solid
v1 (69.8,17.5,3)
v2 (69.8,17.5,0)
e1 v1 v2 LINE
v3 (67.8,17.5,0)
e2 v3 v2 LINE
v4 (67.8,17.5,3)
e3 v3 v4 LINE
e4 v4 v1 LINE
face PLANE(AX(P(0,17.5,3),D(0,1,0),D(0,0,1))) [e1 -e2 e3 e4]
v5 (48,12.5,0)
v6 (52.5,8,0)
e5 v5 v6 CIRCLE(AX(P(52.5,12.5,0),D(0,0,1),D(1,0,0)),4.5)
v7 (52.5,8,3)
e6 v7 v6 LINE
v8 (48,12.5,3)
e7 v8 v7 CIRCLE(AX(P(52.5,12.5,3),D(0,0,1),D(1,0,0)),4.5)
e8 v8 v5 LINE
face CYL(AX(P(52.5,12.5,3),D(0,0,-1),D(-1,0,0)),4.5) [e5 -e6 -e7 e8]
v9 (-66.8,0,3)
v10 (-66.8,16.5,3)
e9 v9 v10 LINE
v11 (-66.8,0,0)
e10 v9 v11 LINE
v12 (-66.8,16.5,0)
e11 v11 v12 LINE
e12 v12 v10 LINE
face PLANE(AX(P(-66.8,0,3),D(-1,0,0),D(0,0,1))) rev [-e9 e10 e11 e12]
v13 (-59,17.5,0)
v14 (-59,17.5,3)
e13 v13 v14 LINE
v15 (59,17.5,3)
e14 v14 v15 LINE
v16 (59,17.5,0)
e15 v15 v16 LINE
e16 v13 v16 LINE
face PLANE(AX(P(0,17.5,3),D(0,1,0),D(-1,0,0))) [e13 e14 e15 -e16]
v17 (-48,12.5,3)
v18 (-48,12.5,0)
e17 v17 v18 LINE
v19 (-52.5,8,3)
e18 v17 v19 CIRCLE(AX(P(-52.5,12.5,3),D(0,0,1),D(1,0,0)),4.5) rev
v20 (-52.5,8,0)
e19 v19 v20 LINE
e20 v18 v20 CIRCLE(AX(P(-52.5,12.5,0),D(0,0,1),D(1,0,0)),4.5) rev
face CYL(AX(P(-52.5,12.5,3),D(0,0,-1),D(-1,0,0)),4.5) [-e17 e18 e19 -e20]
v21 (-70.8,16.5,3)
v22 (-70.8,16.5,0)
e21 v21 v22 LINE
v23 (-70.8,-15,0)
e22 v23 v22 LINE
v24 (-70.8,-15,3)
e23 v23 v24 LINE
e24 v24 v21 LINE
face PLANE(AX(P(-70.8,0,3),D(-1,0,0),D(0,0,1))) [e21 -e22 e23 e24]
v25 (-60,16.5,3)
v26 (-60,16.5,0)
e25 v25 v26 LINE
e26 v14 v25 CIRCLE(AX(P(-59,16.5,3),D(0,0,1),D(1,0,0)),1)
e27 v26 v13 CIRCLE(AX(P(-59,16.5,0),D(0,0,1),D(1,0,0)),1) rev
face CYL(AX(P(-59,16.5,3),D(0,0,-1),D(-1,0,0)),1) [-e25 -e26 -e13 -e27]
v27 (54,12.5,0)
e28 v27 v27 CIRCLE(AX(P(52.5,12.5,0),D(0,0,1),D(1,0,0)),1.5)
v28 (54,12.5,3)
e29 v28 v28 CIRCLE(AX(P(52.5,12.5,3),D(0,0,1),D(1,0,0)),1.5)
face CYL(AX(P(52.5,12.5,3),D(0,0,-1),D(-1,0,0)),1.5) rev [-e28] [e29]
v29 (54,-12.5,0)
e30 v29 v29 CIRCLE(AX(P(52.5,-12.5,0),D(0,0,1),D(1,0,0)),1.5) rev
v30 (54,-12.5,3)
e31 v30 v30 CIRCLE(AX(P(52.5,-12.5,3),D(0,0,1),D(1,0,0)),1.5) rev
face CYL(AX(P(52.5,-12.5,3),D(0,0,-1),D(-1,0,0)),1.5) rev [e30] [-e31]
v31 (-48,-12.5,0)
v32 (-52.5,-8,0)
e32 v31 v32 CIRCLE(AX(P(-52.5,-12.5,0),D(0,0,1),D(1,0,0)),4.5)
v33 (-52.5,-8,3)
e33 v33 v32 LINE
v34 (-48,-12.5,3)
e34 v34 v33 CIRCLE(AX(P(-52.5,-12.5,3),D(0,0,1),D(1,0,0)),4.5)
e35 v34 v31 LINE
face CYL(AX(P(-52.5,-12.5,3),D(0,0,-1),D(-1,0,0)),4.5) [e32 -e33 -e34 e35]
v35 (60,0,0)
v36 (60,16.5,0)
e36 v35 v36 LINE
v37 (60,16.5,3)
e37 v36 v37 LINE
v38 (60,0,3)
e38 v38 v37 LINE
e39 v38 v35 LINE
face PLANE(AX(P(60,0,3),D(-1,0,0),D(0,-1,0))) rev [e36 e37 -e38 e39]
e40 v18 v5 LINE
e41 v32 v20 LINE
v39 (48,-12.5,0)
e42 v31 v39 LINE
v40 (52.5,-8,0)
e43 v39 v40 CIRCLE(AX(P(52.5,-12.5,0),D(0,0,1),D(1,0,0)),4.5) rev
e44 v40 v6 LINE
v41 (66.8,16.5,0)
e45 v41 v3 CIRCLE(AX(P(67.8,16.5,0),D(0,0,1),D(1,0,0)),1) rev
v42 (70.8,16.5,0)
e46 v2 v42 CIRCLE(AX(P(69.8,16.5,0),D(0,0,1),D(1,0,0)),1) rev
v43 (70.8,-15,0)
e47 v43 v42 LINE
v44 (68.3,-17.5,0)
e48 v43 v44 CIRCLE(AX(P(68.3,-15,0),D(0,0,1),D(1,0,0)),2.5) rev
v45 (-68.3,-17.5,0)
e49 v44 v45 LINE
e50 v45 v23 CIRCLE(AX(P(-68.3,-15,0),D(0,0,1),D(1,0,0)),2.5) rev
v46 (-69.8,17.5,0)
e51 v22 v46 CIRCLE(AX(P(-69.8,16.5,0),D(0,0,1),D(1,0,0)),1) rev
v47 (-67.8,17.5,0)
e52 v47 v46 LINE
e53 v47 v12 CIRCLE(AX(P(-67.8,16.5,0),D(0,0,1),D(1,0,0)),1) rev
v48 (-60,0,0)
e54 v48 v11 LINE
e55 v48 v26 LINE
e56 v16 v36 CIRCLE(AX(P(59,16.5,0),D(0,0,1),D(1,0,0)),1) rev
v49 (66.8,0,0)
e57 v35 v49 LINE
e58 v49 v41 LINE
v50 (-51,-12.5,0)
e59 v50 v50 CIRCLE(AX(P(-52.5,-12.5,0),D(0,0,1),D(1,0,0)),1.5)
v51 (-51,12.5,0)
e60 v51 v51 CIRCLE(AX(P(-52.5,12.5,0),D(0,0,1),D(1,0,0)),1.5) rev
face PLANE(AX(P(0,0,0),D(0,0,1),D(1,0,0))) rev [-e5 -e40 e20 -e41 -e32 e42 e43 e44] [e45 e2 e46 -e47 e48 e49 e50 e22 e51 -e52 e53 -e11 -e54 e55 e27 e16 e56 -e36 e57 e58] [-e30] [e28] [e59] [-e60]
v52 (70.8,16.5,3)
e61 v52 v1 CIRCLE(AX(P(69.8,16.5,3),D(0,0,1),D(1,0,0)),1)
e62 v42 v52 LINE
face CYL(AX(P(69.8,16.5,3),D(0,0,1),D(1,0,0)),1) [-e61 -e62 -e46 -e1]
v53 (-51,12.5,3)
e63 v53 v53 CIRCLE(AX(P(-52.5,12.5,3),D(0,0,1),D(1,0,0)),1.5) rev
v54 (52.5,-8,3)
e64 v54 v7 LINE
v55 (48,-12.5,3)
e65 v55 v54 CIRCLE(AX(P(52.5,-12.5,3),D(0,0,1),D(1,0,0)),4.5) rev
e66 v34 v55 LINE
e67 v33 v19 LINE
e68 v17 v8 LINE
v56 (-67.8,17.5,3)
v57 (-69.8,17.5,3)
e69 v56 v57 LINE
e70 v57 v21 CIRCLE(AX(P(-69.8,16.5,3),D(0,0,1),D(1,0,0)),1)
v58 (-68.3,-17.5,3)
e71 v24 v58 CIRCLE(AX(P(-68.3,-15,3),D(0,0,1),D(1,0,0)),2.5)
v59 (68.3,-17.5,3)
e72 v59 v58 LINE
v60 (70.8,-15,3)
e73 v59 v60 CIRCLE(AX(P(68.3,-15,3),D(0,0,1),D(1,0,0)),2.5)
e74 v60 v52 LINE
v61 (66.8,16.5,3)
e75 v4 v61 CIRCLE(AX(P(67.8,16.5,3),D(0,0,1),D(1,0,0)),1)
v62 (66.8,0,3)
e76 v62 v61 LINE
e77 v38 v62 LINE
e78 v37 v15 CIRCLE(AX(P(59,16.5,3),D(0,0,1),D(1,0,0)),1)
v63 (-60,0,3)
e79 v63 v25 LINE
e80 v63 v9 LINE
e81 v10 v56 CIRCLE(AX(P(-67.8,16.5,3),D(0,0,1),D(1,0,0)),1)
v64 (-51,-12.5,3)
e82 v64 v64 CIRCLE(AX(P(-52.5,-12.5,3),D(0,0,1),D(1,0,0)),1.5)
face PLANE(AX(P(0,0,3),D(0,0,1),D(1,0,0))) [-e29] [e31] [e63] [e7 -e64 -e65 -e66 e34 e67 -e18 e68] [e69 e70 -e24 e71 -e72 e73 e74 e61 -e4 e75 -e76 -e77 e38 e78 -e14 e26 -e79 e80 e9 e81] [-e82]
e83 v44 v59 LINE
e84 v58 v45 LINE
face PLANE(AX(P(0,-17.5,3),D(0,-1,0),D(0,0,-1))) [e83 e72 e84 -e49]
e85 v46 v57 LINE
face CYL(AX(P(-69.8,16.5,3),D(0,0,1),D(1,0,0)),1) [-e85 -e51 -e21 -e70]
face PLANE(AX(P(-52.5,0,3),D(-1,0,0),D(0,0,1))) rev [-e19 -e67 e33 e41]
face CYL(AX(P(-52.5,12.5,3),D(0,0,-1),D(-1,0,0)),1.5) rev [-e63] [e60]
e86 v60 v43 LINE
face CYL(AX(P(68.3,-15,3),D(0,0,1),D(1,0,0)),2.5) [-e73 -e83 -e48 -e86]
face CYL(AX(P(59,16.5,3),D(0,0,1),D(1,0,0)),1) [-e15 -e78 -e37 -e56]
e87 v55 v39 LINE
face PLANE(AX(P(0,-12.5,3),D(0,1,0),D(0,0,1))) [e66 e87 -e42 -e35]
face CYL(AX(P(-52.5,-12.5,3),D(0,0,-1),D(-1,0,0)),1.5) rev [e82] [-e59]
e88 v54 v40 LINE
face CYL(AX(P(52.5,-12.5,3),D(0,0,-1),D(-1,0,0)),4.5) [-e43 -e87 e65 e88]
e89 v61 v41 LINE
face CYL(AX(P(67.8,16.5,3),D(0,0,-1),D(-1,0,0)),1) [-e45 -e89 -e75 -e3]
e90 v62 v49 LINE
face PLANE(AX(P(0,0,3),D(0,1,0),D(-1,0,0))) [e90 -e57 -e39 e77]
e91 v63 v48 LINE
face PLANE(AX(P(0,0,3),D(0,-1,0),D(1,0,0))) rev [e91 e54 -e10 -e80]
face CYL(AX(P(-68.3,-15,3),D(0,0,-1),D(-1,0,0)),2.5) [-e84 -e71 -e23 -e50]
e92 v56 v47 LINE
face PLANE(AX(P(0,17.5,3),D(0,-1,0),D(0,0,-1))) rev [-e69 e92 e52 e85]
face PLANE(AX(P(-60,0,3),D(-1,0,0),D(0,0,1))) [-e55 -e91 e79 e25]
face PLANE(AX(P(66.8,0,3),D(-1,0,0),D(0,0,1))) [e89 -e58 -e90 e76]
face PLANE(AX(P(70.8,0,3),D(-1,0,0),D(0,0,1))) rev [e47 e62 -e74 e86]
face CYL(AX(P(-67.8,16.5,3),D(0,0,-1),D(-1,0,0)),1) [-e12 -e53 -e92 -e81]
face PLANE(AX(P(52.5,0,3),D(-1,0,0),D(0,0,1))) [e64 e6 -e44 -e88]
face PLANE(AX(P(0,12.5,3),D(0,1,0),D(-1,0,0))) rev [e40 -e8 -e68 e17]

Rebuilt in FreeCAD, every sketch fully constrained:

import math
import FreeCAD as App
import Part
import Sketcher

V = App.Vector


def edges_at(feature, points):
    """Names of the edges that pass closest to the given points."""
    edges = feature.Shape.Edges
    near = lambda p: min(range(len(edges)), key=lambda i: edges[i].distToShape(Part.Vertex(*p))[0])
    return sorted({f"Edge{near(p) + 1}" for p in points})


def add_polygon(sketch, points):
    """Adds a closed chain of lines whose ends are joined by coincident constraints."""
    first, n = sketch.GeometryCount, len(points)
    for a, b in zip(points, points[1:] + points[:1]):
        sketch.addGeometry(Part.LineSegment(App.Vector(*a, 0), App.Vector(*b, 0)), False)
    for i in range(n):
        sketch.addConstraint(Sketcher.Constraint("Coincident", first + i, 2, first + (i + 1) % n, 1))

doc = App.newDocument("Part")
body = doc.addObject("PartDesign::Body", "Body")

sketch1 = body.newObject("Sketcher::SketchObject", "Sketch")
sketch1.AttachmentSupport = (doc.getObject("XY_Plane"), [""])
sketch1.MapMode = "FlatFace"
add_polygon(sketch1, [(-60, 17.5), (-60, 0), (-66.8, 0), (-66.8, 17.5), (-70.8, 17.5), (-70.8, -17.5), (70.8, -17.5), (70.8, 17.5), (66.8, 17.5), (66.8, 0), (60, 0), (60, 17.5)])
sketch1.addGeometry(Part.Circle(V(-52.5, -12.5, 0), V(0, 0, 1), 1.5), False)
sketch1.addGeometry(Part.Circle(V(52.5, -12.5, 0), V(0, 0, 1), 1.5), False)
sketch1.addGeometry(Part.Circle(V(-52.5, 12.5, 0), V(0, 0, 1), 1.5), False)
sketch1.addGeometry(Part.ArcOfCircle(Part.Circle(V(52.5, -12.5, 0), V(0, 0, 1), 4.5), math.radians(90), math.radians(180)), False)
sketch1.addGeometry(Part.LineSegment(V(48, -12.5, 0), V(-48, -12.5, 0)), False)
sketch1.addGeometry(Part.ArcOfCircle(Part.Circle(V(-52.5, -12.5, 0), V(0, 0, 1), 4.5), math.radians(0), math.radians(90)), False)
sketch1.addGeometry(Part.LineSegment(V(-52.5, -8, 0), V(-52.5, 8, 0)), False)
sketch1.addGeometry(Part.ArcOfCircle(Part.Circle(V(-52.5, 12.5, 0), V(0, 0, 1), 4.5), math.radians(-90), math.radians(0)), False)
sketch1.addGeometry(Part.LineSegment(V(-48, 12.5, 0), V(48, 12.5, 0)), False)
sketch1.addGeometry(Part.ArcOfCircle(Part.Circle(V(52.5, 12.5, 0), V(0, 0, 1), 4.5), math.radians(-180), math.radians(-90)), False)
sketch1.addGeometry(Part.LineSegment(V(52.5, 8, 0), V(52.5, -8, 0)), False)
sketch1.addGeometry(Part.Circle(V(52.5, 12.5, 0), V(0, 0, 1), 1.5), False)
sketch1.addConstraint(Sketcher.Constraint("Coincident", 15, 2, 16, 1))
sketch1.addConstraint(Sketcher.Constraint("Coincident", 16, 2, 17, 1))
sketch1.addConstraint(Sketcher.Constraint("Coincident", 17, 2, 18, 1))
sketch1.addConstraint(Sketcher.Constraint("Coincident", 18, 2, 19, 1))
sketch1.addConstraint(Sketcher.Constraint("Coincident", 19, 2, 20, 1))
sketch1.addConstraint(Sketcher.Constraint("Coincident", 20, 2, 21, 1))
sketch1.addConstraint(Sketcher.Constraint("Coincident", 21, 2, 22, 1))
sketch1.addConstraint(Sketcher.Constraint("Coincident", 22, 2, 15, 1))
sketch1.addConstraint(Sketcher.Constraint("Vertical", 0))
sketch1.addConstraint(Sketcher.Constraint("Horizontal", 1))
sketch1.addConstraint(Sketcher.Constraint("Vertical", 2))
sketch1.addConstraint(Sketcher.Constraint("Horizontal", 3))
sketch1.addConstraint(Sketcher.Constraint("Vertical", 4))
sketch1.addConstraint(Sketcher.Constraint("Horizontal", 5))
sketch1.addConstraint(Sketcher.Constraint("Vertical", 6))
sketch1.addConstraint(Sketcher.Constraint("Horizontal", 7))
sketch1.addConstraint(Sketcher.Constraint("Vertical", 8))
sketch1.addConstraint(Sketcher.Constraint("Horizontal", 9))
sketch1.addConstraint(Sketcher.Constraint("Vertical", 10))
sketch1.addConstraint(Sketcher.Constraint("Horizontal", 11))
sketch1.addConstraint(Sketcher.Constraint("Horizontal", 16))
sketch1.addConstraint(Sketcher.Constraint("Vertical", 18))
sketch1.addConstraint(Sketcher.Constraint("Horizontal", 20))
sketch1.addConstraint(Sketcher.Constraint("Vertical", 22))
sketch1.addConstraint(Sketcher.Constraint("Coincident", 15, 3, 13, 3))
sketch1.addConstraint(Sketcher.Constraint("Coincident", 17, 3, 12, 3))
sketch1.addConstraint(Sketcher.Constraint("Coincident", 19, 3, 14, 3))
sketch1.addConstraint(Sketcher.Constraint("Coincident", 23, 3, 21, 3))
sketch1.addConstraint(Sketcher.Constraint("Equal", 12, 13))
sketch1.addConstraint(Sketcher.Constraint("Equal", 13, 14))
sketch1.addConstraint(Sketcher.Constraint("Equal", 15, 17))
sketch1.addConstraint(Sketcher.Constraint("Equal", 17, 19))
sketch1.addConstraint(Sketcher.Constraint("Equal", 19, 21))
sketch1.addConstraint(Sketcher.Constraint("Equal", 14, 23))
sketch1.addConstraint(Sketcher.Constraint("Symmetric", 13, 3, 14, 3, -1, 1))
sketch1.addConstraint(Sketcher.Constraint("Symmetric", 12, 3, 21, 3, -1, 1))
sketch1.addConstraint(Sketcher.Constraint("Symmetric", 3, 2, 5, 2, -1, 1))
sketch1.addConstraint(Sketcher.Constraint("Symmetric", 1, 2, 8, 2, -1, 1))
sketch1.addConstraint(Sketcher.Constraint("Symmetric", 12, 3, 13, 3, -2))
sketch1.addConstraint(Sketcher.Constraint("Symmetric", 0, 2, 9, 2, -2))
sketch1.addConstraint(Sketcher.Constraint("Horizontal", 3, 2, 6, 2))
sketch1.addConstraint(Sketcher.Constraint("Horizontal", 7, 2, 10, 2))
sketch1.addConstraint(Sketcher.Constraint("Horizontal", 17, 3, 15, 2))
sketch1.addConstraint(Sketcher.Constraint("Horizontal", 23, 3, 19, 2))
sketch1.addConstraint(Sketcher.Constraint("Vertical", 19, 3, 17, 2))
sketch1.addConstraint(Sketcher.Constraint("Vertical", 23, 3, 21, 2))
sketch1.addConstraint(Sketcher.Constraint("Diameter", 12, 3.0))
sketch1.addConstraint(Sketcher.Constraint("Radius", 15, 4.5))
sketch1.addConstraint(Sketcher.Constraint("DistanceX", 3, 2, 3, 1, 4.0))
sketch1.addConstraint(Sketcher.Constraint("DistanceX", 11, 2, 11, 1, 120.0))
sketch1.addConstraint(Sketcher.Constraint("DistanceX", 16, 2, 16, 1, 96.0))
sketch1.addConstraint(Sketcher.Constraint("DistanceY", 4, 2, 4, 1, 35.0))
sketch1.addConstraint(Sketcher.Constraint("DistanceY", 18, 1, 18, 2, 16.0))
sketch1.addConstraint(Sketcher.Constraint("DistanceX", 1, 2, 1, 1, 6.8))
pad1 = body.newObject("PartDesign::Pad", "Pad")
pad1.Profile = sketch1
pad1.Length = 3
doc.recompute()

fillet = body.newObject("PartDesign::Fillet", "Fillet")
fillet.Base = (pad1, edges_at(pad1, [(-70.8, -17.5, 1.5), (70.8, -17.5, 1.5)]))
fillet.Radius = 2.5
doc.recompute()

fillet2 = body.newObject("PartDesign::Fillet", "Fillet001")
fillet2.Base = (fillet, edges_at(fillet, [
    (-70.8, 17.5, 1.5),
    (-66.8, 17.5, 1.5),
    (-60, 17.5, 1.5),
    (60, 17.5, 1.5),
    (66.8, 17.5, 1.5),
    (70.8, 17.5, 1.5),
]))
fillet2.Radius = 1

doc.recompute()
